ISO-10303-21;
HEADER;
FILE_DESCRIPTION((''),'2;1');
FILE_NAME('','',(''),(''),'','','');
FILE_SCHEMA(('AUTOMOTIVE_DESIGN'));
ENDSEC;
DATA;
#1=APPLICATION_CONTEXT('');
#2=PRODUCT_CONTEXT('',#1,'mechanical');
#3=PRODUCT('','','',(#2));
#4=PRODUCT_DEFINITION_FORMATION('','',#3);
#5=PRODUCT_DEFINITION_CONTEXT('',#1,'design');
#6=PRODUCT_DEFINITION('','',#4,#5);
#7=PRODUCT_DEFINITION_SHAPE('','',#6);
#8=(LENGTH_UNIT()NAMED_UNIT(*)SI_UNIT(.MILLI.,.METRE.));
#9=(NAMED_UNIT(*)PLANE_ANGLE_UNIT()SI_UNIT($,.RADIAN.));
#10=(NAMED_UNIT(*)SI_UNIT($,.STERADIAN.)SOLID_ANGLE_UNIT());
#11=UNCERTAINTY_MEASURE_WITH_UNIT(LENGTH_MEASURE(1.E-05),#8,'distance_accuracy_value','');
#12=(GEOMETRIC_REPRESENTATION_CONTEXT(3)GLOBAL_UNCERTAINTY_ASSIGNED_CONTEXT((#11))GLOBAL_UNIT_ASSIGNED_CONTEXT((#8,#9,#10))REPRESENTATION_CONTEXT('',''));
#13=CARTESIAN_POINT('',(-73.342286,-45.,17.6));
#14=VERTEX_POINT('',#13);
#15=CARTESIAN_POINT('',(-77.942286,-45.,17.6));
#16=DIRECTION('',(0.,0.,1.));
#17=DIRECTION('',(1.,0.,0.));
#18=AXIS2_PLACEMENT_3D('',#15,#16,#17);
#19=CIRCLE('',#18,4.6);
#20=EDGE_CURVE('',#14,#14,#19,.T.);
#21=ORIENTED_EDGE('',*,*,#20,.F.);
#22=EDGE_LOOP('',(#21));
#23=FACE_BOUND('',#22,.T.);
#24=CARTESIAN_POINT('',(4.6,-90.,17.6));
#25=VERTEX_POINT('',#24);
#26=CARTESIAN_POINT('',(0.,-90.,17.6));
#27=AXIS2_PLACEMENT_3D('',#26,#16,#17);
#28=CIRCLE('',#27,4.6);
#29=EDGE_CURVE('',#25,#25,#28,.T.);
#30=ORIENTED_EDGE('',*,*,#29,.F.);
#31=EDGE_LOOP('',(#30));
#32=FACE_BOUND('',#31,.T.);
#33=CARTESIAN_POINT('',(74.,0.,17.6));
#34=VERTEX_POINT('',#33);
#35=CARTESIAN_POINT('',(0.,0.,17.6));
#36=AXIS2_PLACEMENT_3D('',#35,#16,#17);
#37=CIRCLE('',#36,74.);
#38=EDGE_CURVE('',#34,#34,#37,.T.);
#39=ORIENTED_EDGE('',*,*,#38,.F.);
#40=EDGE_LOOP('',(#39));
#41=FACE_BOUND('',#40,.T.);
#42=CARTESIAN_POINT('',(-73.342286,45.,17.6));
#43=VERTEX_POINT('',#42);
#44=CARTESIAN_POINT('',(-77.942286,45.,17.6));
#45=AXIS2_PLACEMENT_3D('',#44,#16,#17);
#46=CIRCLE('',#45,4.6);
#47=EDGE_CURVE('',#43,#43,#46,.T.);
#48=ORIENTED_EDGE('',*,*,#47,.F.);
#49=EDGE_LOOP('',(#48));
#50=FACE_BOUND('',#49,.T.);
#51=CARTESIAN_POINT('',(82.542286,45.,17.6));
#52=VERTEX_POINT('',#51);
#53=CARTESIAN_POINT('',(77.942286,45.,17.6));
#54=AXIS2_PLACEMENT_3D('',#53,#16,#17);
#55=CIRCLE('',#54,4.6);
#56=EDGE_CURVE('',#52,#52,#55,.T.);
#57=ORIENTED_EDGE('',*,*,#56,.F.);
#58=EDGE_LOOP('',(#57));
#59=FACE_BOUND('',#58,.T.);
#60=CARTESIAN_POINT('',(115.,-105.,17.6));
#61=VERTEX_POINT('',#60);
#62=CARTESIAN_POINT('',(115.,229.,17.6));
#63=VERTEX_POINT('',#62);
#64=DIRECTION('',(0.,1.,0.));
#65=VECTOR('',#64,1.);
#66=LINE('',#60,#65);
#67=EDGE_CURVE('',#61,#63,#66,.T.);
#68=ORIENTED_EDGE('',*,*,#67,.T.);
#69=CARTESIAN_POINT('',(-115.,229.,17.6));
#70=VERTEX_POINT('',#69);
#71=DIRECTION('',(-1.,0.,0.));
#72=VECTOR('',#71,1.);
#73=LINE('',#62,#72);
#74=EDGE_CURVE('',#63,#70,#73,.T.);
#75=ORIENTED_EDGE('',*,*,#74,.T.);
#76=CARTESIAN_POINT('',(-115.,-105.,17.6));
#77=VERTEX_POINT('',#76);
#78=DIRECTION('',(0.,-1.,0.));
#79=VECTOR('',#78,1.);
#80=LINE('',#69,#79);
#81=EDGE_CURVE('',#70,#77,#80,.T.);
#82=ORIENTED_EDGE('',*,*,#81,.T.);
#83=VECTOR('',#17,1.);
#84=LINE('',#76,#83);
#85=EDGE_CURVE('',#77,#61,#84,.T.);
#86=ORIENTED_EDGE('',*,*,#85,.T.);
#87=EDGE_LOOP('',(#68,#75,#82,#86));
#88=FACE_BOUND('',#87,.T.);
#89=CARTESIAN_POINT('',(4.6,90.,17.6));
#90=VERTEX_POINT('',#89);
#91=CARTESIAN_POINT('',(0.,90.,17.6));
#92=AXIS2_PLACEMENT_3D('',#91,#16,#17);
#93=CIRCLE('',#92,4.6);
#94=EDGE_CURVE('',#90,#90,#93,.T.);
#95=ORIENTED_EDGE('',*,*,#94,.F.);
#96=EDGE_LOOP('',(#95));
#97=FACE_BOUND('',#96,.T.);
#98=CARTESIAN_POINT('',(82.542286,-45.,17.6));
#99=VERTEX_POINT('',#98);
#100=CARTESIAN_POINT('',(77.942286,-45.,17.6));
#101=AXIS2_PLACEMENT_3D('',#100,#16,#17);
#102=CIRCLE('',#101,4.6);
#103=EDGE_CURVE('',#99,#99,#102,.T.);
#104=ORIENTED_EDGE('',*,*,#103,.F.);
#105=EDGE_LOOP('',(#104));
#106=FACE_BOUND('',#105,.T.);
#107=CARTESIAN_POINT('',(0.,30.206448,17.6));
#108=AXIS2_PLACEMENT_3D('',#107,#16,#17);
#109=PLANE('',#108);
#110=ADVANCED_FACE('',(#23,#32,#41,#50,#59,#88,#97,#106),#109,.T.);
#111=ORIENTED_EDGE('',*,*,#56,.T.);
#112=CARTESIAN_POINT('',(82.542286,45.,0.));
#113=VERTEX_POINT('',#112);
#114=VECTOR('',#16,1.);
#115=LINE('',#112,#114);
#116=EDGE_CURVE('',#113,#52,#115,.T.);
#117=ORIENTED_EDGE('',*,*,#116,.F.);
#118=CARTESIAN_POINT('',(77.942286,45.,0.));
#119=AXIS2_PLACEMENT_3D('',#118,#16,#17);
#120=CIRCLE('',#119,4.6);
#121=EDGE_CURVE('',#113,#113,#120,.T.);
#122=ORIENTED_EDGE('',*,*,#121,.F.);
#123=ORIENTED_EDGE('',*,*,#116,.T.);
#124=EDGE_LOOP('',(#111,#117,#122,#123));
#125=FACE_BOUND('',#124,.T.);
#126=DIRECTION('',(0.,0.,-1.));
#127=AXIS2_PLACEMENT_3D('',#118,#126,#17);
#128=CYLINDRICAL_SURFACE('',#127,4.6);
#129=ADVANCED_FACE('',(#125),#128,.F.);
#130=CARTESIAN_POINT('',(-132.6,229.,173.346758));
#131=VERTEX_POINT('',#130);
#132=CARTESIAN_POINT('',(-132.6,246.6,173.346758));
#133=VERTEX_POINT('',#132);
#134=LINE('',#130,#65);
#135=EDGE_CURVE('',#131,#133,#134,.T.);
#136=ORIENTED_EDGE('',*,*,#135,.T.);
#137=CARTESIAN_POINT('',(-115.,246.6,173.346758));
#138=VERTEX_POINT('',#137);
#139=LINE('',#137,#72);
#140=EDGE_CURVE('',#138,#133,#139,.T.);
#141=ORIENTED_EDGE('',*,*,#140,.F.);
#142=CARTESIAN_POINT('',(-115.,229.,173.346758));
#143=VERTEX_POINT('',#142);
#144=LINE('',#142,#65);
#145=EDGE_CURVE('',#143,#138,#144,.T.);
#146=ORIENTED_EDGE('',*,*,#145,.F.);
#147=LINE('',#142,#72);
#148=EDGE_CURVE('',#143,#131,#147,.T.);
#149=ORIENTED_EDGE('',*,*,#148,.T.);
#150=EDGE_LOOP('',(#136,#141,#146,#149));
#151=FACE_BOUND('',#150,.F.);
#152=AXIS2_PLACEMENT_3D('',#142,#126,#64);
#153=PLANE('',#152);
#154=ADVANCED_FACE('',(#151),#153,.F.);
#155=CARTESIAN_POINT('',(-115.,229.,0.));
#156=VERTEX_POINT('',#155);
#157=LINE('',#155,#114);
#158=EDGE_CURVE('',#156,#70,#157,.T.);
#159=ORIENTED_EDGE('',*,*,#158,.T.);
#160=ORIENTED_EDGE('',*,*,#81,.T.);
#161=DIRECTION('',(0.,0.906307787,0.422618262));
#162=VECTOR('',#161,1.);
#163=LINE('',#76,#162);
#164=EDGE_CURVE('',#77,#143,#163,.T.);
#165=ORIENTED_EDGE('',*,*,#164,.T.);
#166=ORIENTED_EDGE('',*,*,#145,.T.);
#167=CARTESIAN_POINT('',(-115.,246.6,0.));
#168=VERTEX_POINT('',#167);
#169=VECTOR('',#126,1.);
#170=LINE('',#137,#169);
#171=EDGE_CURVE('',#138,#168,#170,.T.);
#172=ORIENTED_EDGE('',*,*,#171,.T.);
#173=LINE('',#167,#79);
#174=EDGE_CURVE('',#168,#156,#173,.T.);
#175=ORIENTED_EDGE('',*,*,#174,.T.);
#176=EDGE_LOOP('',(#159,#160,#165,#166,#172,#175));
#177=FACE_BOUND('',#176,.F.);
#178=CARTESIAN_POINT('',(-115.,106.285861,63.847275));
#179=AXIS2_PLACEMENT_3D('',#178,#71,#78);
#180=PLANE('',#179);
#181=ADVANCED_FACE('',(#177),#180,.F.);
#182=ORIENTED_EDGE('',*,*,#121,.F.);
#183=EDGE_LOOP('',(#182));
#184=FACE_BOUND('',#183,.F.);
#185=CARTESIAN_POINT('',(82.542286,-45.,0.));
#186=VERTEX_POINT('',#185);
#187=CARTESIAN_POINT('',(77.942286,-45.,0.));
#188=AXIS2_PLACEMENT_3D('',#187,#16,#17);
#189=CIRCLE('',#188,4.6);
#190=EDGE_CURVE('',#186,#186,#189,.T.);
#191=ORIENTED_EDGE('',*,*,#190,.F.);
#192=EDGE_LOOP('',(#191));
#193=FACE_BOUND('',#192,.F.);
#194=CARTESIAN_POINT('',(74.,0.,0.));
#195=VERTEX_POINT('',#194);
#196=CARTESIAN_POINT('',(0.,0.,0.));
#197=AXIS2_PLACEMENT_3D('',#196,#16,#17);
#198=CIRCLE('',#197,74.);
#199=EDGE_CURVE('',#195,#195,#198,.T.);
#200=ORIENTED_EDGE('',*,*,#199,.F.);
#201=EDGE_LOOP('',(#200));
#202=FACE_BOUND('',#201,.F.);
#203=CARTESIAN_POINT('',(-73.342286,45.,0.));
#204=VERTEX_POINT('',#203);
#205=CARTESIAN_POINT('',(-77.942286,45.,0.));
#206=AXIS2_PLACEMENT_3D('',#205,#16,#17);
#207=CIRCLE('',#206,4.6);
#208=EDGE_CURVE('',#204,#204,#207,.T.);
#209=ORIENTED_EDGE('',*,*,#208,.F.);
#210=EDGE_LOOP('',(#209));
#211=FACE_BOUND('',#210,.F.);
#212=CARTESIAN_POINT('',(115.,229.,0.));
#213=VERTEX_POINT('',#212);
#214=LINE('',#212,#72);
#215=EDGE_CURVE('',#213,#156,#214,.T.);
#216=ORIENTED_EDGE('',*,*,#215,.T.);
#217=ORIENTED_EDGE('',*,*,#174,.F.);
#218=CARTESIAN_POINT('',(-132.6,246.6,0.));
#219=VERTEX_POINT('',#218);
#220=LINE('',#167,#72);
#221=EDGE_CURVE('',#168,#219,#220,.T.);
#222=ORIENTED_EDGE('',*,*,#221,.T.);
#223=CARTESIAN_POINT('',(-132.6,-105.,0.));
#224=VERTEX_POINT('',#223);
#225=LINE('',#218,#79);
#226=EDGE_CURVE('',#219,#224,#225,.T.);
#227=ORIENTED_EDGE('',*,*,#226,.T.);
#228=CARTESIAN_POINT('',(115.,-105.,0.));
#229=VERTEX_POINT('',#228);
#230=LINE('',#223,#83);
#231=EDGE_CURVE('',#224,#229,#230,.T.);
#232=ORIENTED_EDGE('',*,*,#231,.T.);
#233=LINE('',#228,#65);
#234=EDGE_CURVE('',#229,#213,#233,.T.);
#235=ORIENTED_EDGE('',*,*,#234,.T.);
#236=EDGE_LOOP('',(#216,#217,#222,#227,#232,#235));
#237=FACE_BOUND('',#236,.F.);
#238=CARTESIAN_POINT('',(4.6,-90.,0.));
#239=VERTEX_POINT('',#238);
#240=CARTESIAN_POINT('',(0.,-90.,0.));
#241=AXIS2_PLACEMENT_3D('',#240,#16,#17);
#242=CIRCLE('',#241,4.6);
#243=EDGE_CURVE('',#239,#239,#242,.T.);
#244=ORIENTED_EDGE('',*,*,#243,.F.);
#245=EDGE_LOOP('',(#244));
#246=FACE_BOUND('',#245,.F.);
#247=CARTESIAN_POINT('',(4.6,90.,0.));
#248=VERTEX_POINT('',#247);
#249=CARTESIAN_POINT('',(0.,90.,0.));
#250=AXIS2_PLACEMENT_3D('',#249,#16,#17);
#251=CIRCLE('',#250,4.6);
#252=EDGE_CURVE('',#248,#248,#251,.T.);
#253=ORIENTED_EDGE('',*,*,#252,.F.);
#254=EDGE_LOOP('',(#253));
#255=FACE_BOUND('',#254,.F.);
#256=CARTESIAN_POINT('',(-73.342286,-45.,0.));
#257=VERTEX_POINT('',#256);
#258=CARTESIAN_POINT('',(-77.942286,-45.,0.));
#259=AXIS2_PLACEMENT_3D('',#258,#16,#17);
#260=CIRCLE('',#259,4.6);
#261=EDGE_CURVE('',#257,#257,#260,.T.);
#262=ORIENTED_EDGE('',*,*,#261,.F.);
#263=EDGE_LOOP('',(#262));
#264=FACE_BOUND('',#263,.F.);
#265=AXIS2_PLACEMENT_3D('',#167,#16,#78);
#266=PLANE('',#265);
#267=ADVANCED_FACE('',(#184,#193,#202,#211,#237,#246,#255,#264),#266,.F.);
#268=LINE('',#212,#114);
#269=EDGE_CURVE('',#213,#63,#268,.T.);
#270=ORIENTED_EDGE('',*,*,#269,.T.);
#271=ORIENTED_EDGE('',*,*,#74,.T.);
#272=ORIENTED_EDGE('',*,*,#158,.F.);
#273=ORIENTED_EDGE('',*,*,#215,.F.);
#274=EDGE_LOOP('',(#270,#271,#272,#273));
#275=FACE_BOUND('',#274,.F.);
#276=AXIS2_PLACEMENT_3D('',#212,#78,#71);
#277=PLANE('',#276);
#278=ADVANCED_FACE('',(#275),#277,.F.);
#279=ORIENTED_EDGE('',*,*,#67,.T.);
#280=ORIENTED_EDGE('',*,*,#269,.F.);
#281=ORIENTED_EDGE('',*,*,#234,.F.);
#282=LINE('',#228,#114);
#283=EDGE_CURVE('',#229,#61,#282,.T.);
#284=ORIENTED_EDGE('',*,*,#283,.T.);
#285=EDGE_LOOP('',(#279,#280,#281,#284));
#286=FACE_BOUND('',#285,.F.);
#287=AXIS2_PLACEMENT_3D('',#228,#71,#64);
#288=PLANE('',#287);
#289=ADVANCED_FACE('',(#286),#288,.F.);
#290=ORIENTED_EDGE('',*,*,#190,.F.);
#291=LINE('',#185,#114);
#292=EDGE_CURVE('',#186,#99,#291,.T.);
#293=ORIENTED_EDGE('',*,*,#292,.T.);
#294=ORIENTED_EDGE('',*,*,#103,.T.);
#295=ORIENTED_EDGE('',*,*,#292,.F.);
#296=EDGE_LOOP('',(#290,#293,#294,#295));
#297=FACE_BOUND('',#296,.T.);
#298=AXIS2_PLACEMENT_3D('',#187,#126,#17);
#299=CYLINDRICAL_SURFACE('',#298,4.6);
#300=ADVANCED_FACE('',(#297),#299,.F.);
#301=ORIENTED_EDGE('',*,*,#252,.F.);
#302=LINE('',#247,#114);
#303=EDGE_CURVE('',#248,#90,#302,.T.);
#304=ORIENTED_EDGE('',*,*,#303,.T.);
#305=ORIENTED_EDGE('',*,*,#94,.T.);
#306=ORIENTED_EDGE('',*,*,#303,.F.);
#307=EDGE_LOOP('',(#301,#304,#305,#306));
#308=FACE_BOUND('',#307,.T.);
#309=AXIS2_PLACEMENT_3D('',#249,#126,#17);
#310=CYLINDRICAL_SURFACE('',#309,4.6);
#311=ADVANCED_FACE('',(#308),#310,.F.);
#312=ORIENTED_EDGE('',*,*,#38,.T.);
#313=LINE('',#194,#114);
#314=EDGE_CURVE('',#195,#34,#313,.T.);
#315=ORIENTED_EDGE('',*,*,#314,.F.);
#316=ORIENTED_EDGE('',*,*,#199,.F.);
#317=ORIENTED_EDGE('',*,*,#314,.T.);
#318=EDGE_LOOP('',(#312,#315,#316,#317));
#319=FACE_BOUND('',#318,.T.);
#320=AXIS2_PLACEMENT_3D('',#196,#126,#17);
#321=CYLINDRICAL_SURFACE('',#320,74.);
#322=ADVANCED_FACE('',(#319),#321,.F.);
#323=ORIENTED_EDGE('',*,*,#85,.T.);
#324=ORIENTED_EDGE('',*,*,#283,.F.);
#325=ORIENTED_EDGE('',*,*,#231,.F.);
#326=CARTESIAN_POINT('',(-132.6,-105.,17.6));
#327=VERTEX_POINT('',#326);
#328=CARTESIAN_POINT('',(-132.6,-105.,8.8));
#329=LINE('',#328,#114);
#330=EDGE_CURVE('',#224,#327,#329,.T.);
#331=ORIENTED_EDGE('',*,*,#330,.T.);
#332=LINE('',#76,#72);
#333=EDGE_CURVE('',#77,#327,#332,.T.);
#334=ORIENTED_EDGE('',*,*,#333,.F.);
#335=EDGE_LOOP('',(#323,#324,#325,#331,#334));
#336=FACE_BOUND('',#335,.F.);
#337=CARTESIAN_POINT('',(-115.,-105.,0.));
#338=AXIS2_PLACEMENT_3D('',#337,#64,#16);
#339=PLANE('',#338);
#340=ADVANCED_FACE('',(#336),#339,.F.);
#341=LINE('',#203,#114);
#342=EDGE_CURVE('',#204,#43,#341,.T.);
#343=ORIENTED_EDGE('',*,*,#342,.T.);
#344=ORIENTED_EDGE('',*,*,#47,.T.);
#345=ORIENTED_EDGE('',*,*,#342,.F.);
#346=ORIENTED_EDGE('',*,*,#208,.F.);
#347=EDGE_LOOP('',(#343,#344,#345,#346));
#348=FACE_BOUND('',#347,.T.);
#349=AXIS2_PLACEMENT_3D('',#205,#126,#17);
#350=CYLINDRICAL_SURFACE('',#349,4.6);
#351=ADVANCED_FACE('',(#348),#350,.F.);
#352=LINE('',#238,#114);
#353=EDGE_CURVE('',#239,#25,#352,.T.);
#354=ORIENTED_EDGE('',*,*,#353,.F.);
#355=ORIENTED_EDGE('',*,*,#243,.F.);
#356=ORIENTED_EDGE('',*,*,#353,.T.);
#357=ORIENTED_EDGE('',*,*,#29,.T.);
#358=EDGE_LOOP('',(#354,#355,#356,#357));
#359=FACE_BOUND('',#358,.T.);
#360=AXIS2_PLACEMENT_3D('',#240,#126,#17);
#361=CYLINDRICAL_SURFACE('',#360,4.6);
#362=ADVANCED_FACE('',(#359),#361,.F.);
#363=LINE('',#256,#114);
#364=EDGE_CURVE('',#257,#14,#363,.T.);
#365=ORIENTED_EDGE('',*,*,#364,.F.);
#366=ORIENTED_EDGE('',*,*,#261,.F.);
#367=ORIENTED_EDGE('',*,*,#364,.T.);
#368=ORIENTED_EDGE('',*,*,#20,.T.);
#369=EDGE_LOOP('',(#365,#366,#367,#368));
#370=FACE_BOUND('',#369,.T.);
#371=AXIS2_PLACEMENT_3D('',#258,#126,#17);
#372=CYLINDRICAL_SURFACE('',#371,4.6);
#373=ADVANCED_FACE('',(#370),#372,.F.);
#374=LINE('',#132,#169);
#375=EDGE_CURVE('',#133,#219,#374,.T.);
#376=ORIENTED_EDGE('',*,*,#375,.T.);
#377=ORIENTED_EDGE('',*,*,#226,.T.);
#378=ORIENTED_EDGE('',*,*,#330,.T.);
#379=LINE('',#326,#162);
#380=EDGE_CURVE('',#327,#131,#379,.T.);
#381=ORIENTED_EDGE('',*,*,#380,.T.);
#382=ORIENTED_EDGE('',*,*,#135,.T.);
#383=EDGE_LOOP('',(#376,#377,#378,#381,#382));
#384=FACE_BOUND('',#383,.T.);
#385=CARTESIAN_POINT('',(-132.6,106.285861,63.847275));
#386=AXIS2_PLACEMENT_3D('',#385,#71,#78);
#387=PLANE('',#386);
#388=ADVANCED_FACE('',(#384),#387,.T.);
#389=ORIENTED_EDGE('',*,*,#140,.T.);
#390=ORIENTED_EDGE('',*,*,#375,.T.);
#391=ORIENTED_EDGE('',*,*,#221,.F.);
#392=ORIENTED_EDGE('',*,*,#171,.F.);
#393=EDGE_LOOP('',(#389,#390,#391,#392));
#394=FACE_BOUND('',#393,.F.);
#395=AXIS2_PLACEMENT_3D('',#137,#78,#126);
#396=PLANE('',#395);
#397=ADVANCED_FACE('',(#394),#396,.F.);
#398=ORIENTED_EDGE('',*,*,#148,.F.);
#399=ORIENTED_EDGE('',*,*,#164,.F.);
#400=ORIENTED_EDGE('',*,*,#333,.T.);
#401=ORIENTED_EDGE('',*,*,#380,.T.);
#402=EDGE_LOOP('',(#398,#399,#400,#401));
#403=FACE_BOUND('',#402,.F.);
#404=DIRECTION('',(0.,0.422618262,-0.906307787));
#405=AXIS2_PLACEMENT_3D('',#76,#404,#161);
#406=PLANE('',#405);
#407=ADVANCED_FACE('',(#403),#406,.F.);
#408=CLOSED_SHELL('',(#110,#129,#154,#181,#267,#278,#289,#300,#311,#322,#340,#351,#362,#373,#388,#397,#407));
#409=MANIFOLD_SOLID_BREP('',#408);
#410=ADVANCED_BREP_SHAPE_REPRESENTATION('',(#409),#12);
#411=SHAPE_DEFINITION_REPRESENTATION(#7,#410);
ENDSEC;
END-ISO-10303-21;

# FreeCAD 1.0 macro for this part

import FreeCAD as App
import Part
import Sketcher
from FreeCAD import Vector
Q = App.Units.Quantity


def add_polygon(sketch, points):
    """Adds a closed chain of lines whose ends are joined by coincident constraints."""
    first, n = sketch.GeometryCount, len(points)
    for a, b in zip(points, points[1:] + points[:1]):
        sketch.addGeometry(Part.LineSegment(App.Vector(*a, 0), App.Vector(*b, 0)), False)
    for i in range(n):
        sketch.addConstraint(Sketcher.Constraint("Coincident", first + i, 2, first + (i + 1) % n, 1))

doc = App.newDocument("Part")
params = doc.addObject("Spreadsheet::Sheet", "Params")
for row, (alias, value) in enumerate([
    ("sketch1_diameter", "148 mm"),
    ("sketch1_diameter2", "9.2 mm"),
    ("sketch1_width", "230 mm"),
    ("sketch1_height", "334 mm"),
    ("pad1_length", "17.6 mm"),
    ("sketch2_width", "17.6 mm"),
    ("sketch2_width2", "351.6 mm"),
    ("pad2_length", "17.6 mm"),
], start=1):
    params.set(f"A{row}", alias)
    params.set(f"B{row}", "=" + value)
    params.setAlias(f"B{row}", alias)

body = doc.addObject("PartDesign::Body", "Body")

# Sketch on XY plane
sketch1 = body.newObject("Sketcher::SketchObject", "Sketch")
sketch1.AttachmentSupport = (doc.getObject("XY_Plane"), [""])
sketch1.MapMode = "FlatFace"
add_polygon(sketch1, [(-115, -105), (115, -105), (115, 229), (-115, 229)])  # lines 0-3
sketch1.addGeometry(Part.Circle(Vector(-77.942286, -45, 0), Vector(0, 0, 1), 4.6), False)  # 4
sketch1.addGeometry(Part.Circle(Vector(0, -90, 0), Vector(0, 0, 1), 4.6), False)  # 5
sketch1.addGeometry(Part.Circle(Vector(0, 0, 0), Vector(0, 0, 1), 74), False)  # 6
sketch1.addGeometry(Part.Circle(Vector(77.942286, -45, 0), Vector(0, 0, 1), 4.6), False)  # 7
sketch1.addGeometry(Part.Circle(Vector(-77.942286, 45, 0), Vector(0, 0, 1), 4.6), False)  # 8
sketch1.addGeometry(Part.Circle(Vector(77.942286, 45, 0), Vector(0, 0, 1), 4.6), False)  # 9
sketch1.addGeometry(Part.Circle(Vector(0, 90, 0), Vector(0, 0, 1), 4.6), False)  # 10
sketch1.addConstraint([
    Sketcher.Constraint("Horizontal", 0),
    Sketcher.Constraint("Vertical", 1),
    Sketcher.Constraint("Horizontal", 2),
    Sketcher.Constraint("Vertical", 3),
    Sketcher.Constraint("Coincident", 6, 3, -1, 1),
    Sketcher.Constraint("Equal", 4, 5),
    Sketcher.Constraint("Equal", 5, 7),
    Sketcher.Constraint("Equal", 7, 8),
    Sketcher.Constraint("Equal", 8, 9),
    Sketcher.Constraint("Equal", 9, 10),
    Sketcher.Constraint("Symmetric", 7, 3, 8, 3, -1, 1),
    Sketcher.Constraint("Symmetric", 4, 3, 9, 3, -1, 1),
    Sketcher.Constraint("Symmetric", 5, 3, 10, 3, -1, 1),
    Sketcher.Constraint("Symmetric", 4, 3, 7, 3, -2),
    Sketcher.Constraint("PointOnObject", 5, 3, -2),
    Sketcher.Constraint("Diameter", 6, Q("148 mm")),
    Sketcher.Constraint("Diameter", 4, Q("9.2 mm")),
    Sketcher.Constraint("DistanceX", 0, 1, 0, 2, Q("230 mm")),
    Sketcher.Constraint("DistanceY", 1, 1, 1, 2, Q("334 mm")),
    Sketcher.Constraint("DistanceY", 4, 3, -1, 1, Q("45 mm")),
    Sketcher.Constraint("DistanceY", 5, 3, -1, 1, Q("90 mm")),
    Sketcher.Constraint("DistanceX", -1, 1, 0, 2, Q("115 mm")),
    Sketcher.Constraint("DistanceY", 0, 2, -1, 1, Q("105 mm")),
    Sketcher.Constraint("DistanceX", 4, 3, -1, 1, Q("77.942286 mm")),
])
sketch1.setExpression("Constraints[19]", "Params.sketch1_diameter")
sketch1.setExpression("Constraints[20]", "Params.sketch1_diameter2")
sketch1.setExpression("Constraints[21]", "Params.sketch1_width")
sketch1.setExpression("Constraints[22]", "Params.sketch1_height")
pad1 = body.newObject("PartDesign::Pad", "Pad")
pad1.Profile = sketch1
pad1.setExpression("Length", "Params.pad1_length")

# Sketch on YZ plane
sketch2 = body.newObject("Sketcher::SketchObject", "Sketch001")
sketch2.AttachmentSupport = (doc.getObject("YZ_Plane"), [""])
sketch2.MapMode = "FlatFace"
sketch2.AttachmentOffset = App.Placement(Vector(0, 0, -115), App.Rotation())
add_polygon(sketch2, [(-105, 17.6), (229, 173.346758), (246.6, 173.346758), (246.6, 0), (-105, 0)])  # lines 0-4
sketch2.addConstraint([
    Sketcher.Constraint("Horizontal", 1),
    Sketcher.Constraint("Vertical", 2),
    Sketcher.Constraint("Horizontal", 3),
    Sketcher.Constraint("Vertical", 4),
    Sketcher.Constraint("PointOnObject", 2, 2, -1),
    Sketcher.Constraint("Equal", 1, 4),
    Sketcher.Constraint("Angle", 0, Q("25 deg")),
    Sketcher.Constraint("DistanceX", 1, 1, 1, 2, Q("17.6 mm")),
    Sketcher.Constraint("DistanceX", 3, 2, 3, 1, Q("351.6 mm")),
    Sketcher.Constraint("DistanceX", -1, 1, 0, 2, Q("229 mm")),
])
sketch2.setExpression("Constraints[12]", "Params.sketch2_width")
sketch2.setExpression("Constraints[13]", "Params.sketch2_width2")
pad2 = body.newObject("PartDesign::Pad", "Pad001")
pad2.Profile = sketch2
pad2.setExpression("Length", "Params.pad2_length")
pad2.Reversed = True

doc.recompute()
